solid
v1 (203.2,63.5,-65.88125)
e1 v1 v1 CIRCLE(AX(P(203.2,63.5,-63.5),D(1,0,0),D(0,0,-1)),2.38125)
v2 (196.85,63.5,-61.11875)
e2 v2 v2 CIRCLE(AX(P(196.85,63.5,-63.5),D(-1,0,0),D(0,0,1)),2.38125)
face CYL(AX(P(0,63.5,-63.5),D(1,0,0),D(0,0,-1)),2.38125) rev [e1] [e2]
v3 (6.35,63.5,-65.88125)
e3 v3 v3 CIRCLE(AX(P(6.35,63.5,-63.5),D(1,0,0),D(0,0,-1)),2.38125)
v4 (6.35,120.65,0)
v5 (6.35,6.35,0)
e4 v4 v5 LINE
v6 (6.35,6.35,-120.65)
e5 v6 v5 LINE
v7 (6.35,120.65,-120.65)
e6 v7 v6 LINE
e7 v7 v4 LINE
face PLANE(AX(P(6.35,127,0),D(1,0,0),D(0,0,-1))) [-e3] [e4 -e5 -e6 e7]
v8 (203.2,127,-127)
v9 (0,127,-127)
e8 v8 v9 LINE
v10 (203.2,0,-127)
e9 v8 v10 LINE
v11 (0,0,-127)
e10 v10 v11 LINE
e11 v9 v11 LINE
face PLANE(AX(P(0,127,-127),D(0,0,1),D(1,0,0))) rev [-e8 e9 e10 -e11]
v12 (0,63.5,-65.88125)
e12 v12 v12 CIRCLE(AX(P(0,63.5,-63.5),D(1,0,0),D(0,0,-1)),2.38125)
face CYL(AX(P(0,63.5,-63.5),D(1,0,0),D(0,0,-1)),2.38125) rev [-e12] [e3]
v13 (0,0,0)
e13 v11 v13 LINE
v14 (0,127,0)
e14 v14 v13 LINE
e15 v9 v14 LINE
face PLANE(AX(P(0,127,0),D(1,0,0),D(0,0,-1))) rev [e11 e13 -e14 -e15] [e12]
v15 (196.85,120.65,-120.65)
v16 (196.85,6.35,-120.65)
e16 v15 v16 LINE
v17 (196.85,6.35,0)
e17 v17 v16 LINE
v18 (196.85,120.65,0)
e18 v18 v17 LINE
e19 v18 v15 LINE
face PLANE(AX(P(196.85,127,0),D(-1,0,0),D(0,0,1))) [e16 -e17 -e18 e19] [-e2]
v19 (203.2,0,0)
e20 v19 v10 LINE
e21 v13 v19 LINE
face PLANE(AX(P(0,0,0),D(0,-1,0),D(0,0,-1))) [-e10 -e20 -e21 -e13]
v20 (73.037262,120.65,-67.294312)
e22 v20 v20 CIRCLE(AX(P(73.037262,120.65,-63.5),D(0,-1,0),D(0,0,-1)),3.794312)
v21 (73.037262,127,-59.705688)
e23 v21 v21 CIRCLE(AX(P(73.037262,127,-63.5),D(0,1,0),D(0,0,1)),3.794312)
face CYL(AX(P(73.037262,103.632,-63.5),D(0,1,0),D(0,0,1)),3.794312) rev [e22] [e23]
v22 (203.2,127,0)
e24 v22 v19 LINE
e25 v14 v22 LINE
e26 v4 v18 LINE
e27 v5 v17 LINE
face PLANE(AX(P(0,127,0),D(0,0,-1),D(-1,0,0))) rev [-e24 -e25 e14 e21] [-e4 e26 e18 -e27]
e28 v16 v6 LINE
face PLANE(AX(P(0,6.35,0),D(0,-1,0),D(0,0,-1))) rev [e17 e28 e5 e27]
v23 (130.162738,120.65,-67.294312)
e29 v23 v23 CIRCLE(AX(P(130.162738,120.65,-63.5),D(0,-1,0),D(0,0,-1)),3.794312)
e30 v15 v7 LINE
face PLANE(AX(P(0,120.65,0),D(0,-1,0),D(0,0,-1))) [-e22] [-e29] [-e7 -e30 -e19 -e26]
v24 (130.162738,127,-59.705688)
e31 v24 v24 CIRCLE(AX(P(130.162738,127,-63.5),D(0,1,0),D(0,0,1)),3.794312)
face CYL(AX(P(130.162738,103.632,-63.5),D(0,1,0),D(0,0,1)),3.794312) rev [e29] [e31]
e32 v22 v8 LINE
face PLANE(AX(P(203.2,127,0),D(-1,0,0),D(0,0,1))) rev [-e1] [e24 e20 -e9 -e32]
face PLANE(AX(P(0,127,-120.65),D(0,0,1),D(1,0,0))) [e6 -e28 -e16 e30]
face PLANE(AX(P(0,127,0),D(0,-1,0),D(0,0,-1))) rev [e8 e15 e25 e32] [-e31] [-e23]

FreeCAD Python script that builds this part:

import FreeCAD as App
import Part
import Sketcher
from FreeCAD import Vector
Q = App.Units.Quantity


def faces_at(feature, points):
    """Names of the faces that lie closest to the given points."""
    faces = feature.Shape.Faces
    near = lambda p: min(range(len(faces)), key=lambda i: faces[i].distToShape(Part.Vertex(*p))[0])
    return sorted({f"Face{near(p) + 1}" for p in points})

doc = App.newDocument("Part")
body = doc.addObject("PartDesign::Body", "Body")

# Sketch on XZ plane
sketch1 = body.newObject("Sketcher::SketchObject", "Sketch")
sketch1.AttachmentSupport = (doc.getObject("XZ_Plane"), [""])
sketch1.MapMode = "FlatFace"
sketch1.addGeometry([
    Part.LineSegment(Vector(0, -127, 0), Vector(0, 0, 0)),
    Part.LineSegment(Vector(0, 0, 0), Vector(203, 0, 0)),
    Part.LineSegment(Vector(203, 0, 0), Vector(203, -127, 0)),
    Part.LineSegment(Vector(203, -127, 0), Vector(0, -127, 0)),
], False)
sketch1.addConstraint([
    Sketcher.Constraint("Coincident", 0, 2, 1, 1),
    Sketcher.Constraint("Coincident", 1, 2, 2, 1),
    Sketcher.Constraint("Coincident", 2, 2, 3, 1),
    Sketcher.Constraint("Coincident", 3, 2, 0, 1),
    Sketcher.Constraint("Vertical", 0),
    Sketcher.Constraint("Horizontal", 1),
    Sketcher.Constraint("Vertical", 2),
    Sketcher.Constraint("Horizontal", 3),
    Sketcher.Constraint("Coincident", 0, 2, -1, 1),
    Sketcher.Constraint("DistanceX", 1, 1, 1, 2, Q("8 in")),
    Sketcher.Constraint("DistanceY", 0, 1, 0, 2, Q("5 in")),
])
pad1 = body.newObject("PartDesign::Pad", "Pad")
pad1.Profile = sketch1
pad1.Length = Q("5 in")
pad1.Reversed = True
doc.recompute()

thickness = body.newObject("PartDesign::Thickness", "Thickness")
thickness.Base = (pad1, faces_at(pad1, [(101.6, 63.5, 0)]))
thickness.Value = Q("0.25 in")
thickness.Reversed = True
thickness.Join = "Intersection"

# Sketch on YZ plane
sketch2 = body.newObject("Sketcher::SketchObject", "Sketch001")
sketch2.AttachmentSupport = (doc.getObject("YZ_Plane"), [""])
sketch2.MapMode = "FlatFace"
sketch2.AttachmentOffset = App.Placement(Vector(0, 0, 8 * 25.4), App.Rotation())
sketch2.addGeometry(Part.Circle(Vector(63.5, -63.5, 0), Vector(0, 0, 1), 2.4), False)
sketch2.addConstraint([
    Sketcher.Constraint("Diameter", 0, Q("0.1875 in")),
    Sketcher.Constraint("DistanceX", -1, 1, 0, 3, Q("2.5 in")),
    Sketcher.Constraint("DistanceY", 0, 3, -1, 1, Q("2.5 in")),
])
pocket1 = body.newObject("PartDesign::Pocket", "Pocket")
pocket1.Profile = sketch2
pocket1.Type = "ThroughAll"

# Sketch on XZ plane
sketch3 = body.newObject("Sketcher::SketchObject", "Sketch002")
sketch3.AttachmentSupport = (doc.getObject("XZ_Plane"), [""])
sketch3.MapMode = "FlatFace"
sketch3.AttachmentOffset = App.Placement(Vector(0, 0, -5 * 25.4), App.Rotation())
sketch3.addGeometry([
    Part.Circle(Vector(73, -63.5, 0), Vector(0, 0, 1), 3.8),
    Part.Circle(Vector(130.2, -63.5, 0), Vector(0, 0, 1), 3.8),
], False)
sketch3.addConstraint([
    Sketcher.Constraint("Equal", 0, 1),
    Sketcher.Constraint("Horizontal", 0, 3, 1, 3),
    Sketcher.Constraint("DistanceY", 0, 3, -1, 1, Q("2.5 in")),
    Sketcher.Constraint("Diameter", 0, 7.588624),
    Sketcher.Constraint("DistanceX", -1, 1, 0, 3, 73.037262),
    Sketcher.Constraint("DistanceX", -1, 1, 1, 3, 130.162738),
])
pocket2 = body.newObject("PartDesign::Pocket", "Pocket001")
pocket2.Profile = sketch3
pocket2.Length = Q("0.92 in")
pocket2.Reversed = True

doc.recompute()
